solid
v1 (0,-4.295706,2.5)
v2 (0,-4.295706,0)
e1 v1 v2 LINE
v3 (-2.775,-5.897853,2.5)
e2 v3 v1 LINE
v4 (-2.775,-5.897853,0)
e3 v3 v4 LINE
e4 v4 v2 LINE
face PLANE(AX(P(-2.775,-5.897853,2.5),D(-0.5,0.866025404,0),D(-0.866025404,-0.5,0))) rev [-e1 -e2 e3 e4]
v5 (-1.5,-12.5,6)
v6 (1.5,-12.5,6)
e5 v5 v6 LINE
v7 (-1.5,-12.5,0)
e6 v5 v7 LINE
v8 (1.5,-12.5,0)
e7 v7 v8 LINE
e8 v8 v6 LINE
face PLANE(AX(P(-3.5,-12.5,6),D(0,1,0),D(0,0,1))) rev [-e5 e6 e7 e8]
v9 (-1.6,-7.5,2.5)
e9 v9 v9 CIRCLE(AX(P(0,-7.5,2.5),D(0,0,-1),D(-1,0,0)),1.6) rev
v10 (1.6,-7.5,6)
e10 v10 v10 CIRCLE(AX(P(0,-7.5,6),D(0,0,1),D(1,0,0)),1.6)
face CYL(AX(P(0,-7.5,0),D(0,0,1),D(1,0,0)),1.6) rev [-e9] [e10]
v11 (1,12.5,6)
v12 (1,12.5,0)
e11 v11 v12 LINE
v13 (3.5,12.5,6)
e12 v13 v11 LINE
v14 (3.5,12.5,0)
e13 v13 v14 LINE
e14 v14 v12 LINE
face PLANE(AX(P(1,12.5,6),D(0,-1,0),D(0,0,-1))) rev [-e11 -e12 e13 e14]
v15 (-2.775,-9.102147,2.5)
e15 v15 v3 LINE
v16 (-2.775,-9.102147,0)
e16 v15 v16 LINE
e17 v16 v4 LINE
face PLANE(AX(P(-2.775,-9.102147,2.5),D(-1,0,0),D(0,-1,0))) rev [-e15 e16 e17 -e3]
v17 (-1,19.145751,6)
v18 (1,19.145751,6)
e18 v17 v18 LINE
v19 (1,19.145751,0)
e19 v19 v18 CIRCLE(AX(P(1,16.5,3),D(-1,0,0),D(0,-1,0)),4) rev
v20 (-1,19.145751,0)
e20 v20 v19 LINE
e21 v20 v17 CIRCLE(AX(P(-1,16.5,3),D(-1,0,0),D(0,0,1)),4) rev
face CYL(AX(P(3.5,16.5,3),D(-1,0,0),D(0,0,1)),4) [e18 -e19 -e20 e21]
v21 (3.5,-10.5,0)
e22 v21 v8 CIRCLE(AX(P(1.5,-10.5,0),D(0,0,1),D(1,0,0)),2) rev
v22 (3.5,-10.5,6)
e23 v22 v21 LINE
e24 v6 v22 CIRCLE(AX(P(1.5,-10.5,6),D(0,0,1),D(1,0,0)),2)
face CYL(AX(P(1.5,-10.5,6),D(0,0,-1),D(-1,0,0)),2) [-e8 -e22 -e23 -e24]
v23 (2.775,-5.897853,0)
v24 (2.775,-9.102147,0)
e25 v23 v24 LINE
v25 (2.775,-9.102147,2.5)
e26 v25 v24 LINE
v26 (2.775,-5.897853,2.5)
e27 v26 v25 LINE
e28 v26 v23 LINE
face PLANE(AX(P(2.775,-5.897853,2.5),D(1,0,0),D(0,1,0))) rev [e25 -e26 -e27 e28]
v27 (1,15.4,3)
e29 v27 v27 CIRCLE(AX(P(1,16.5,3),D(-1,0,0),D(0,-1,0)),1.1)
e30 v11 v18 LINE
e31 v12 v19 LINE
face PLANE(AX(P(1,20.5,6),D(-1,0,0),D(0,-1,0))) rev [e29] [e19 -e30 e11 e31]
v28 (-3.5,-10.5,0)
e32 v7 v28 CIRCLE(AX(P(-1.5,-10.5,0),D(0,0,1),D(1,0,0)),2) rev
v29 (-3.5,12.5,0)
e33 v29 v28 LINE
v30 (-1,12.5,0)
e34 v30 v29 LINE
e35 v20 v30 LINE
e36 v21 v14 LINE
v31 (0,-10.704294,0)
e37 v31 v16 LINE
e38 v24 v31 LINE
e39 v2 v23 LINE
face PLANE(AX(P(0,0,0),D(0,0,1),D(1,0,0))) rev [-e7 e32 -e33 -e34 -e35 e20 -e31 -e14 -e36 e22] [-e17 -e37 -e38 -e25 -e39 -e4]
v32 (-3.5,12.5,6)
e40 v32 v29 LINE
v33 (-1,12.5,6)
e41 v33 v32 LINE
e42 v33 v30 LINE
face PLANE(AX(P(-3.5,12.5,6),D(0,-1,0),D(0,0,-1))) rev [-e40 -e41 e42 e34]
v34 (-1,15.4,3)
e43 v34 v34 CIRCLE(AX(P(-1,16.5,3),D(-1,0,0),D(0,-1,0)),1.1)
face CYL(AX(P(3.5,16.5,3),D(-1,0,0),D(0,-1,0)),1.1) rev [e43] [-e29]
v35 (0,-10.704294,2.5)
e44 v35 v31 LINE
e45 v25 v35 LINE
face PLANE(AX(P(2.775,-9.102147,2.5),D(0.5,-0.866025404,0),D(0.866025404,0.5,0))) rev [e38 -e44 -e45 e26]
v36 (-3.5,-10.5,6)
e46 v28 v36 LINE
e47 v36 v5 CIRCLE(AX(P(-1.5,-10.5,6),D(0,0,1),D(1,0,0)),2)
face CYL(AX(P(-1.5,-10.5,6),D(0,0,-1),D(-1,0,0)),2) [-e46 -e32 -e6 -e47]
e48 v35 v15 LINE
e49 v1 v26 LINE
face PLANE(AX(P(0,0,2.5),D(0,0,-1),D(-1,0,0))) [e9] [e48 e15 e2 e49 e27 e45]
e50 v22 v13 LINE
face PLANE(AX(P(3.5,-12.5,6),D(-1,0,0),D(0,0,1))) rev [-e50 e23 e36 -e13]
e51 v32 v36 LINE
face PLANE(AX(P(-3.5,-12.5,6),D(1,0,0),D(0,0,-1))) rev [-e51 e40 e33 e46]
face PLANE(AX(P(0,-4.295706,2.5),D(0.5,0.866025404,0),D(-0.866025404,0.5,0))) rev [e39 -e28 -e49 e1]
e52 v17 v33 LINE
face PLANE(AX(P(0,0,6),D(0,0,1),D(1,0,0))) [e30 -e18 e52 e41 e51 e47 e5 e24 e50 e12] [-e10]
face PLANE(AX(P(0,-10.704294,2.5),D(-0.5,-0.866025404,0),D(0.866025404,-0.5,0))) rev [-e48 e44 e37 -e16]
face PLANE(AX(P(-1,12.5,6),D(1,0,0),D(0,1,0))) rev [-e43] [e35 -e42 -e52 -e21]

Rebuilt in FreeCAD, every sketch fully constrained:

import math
import FreeCAD as App
import Part
import Sketcher

V = App.Vector
Q = App.Units.Quantity


def edges_at(feature, points):
    """Names of the edges that pass closest to the given points."""
    edges = feature.Shape.Edges
    near = lambda p: min(range(len(edges)), key=lambda i: edges[i].distToShape(Part.Vertex(*p))[0])
    return sorted({f"Edge{near(p) + 1}" for p in points})


def add_polygon(sketch, points):
    """Adds a closed chain of lines whose ends are joined by coincident constraints."""
    first, n = sketch.GeometryCount, len(points)
    for a, b in zip(points, points[1:] + points[:1]):
        sketch.addGeometry(Part.LineSegment(App.Vector(*a, 0), App.Vector(*b, 0)), False)
    for i in range(n):
        sketch.addConstraint(Sketcher.Constraint("Coincident", first + i, 2, first + (i + 1) % n, 1))

doc = App.newDocument("Part")
body = doc.addObject("PartDesign::Body", "Body")

# Sketch on XY plane
sketch1 = body.newObject("Sketcher::SketchObject", "Sketch")
sketch1.AttachmentSupport = (doc.getObject("XY_Plane"), [""])
sketch1.MapMode = "FlatFace"
add_polygon(sketch1, [(-1, 20.5), (-1, 12.5), (-3.5, 12.5), (-3.5, -12.5), (3.5, -12.5), (3.5, 12.5), (1, 12.5), (1, 20.5)])  # lines 0-7
sketch1.addConstraint(Sketcher.Constraint("Vertical", 0))
sketch1.addConstraint(Sketcher.Constraint("Horizontal", 1))
sketch1.addConstraint(Sketcher.Constraint("Vertical", 2))
sketch1.addConstraint(Sketcher.Constraint("Horizontal", 3))
sketch1.addConstraint(Sketcher.Constraint("Vertical", 4))
sketch1.addConstraint(Sketcher.Constraint("Horizontal", 5))
sketch1.addConstraint(Sketcher.Constraint("Vertical", 6))
sketch1.addConstraint(Sketcher.Constraint("Horizontal", 7))
sketch1.addConstraint(Sketcher.Constraint("Symmetric", 1, 2, 3, 2, -1, 1))
sketch1.addConstraint(Sketcher.Constraint("Symmetric", 0, 2, 5, 2, -2))
sketch1.addConstraint(Sketcher.Constraint("DistanceX", 3, 1, 3, 2, 7.0))
sketch1.addConstraint(Sketcher.Constraint("DistanceX", 7, 2, 7, 1, 2.0))
sketch1.addConstraint(Sketcher.Constraint("DistanceY", 0, 2, 0, 1, 8.0))
sketch1.addConstraint(Sketcher.Constraint("DistanceY", 2, 2, 2, 1, 25.0))
pad1 = body.newObject("PartDesign::Pad", "Pad")
pad1.Profile = sketch1
pad1.Length = 6

# Sketch on XY plane
sketch2 = body.newObject("Sketcher::SketchObject", "Sketch001")
sketch2.AttachmentSupport = (doc.getObject("XY_Plane"), [""])
sketch2.MapMode = "FlatFace"
sketch2.AttachmentOffset = App.Placement(V(0, 0, 6), App.Rotation())
sketch2.addGeometry(Part.Circle(V(0, -7.5, 0), V(0, 0, 1), 1.6), False)
sketch2.addConstraint(Sketcher.Constraint("PointOnObject", 0, 3, -2))
sketch2.addConstraint(Sketcher.Constraint("Diameter", 0, 3.2))
sketch2.addConstraint(Sketcher.Constraint("DistanceY", 0, 3, -1, 1, 7.5))
pocket1 = body.newObject("PartDesign::Pocket", "Pocket")
pocket1.Profile = sketch2
pocket1.Type = "ThroughAll"

# Sketch on XY plane
sketch3 = body.newObject("Sketcher::SketchObject", "Sketch002")
sketch3.AttachmentSupport = (doc.getObject("XY_Plane"), [""])
sketch3.MapMode = "FlatFace"
add_polygon(sketch3, [(0, -4.3), (2.8, -5.9), (2.8, -9.1), (0, -10.7), (-2.8, -9.1), (-2.8, -5.9)])  # lines 0-5
sketch3.addConstraint(Sketcher.Constraint("Vertical", 1))
sketch3.addConstraint(Sketcher.Constraint("Vertical", 4))
sketch3.addConstraint(Sketcher.Constraint("Symmetric", 1, 2, 3, 2, -2))
sketch3.addConstraint(Sketcher.Constraint("PointOnObject", 2, 2, -2))
sketch3.addConstraint(Sketcher.Constraint("PointOnObject", 5, 2, -2))
sketch3.addConstraint(Sketcher.Constraint("Parallel", 0, 3))
sketch3.addConstraint(Sketcher.Constraint("Parallel", 2, 5))
sketch3.addConstraint(Sketcher.Constraint("Angle", 0, Q("-30 deg")))
sketch3.addConstraint(Sketcher.Constraint("DistanceX", 3, 2, 1, 2, 5.55))
sketch3.addConstraint(Sketcher.Constraint("DistanceY", 1, 2, 1, 1, 3.204294))
sketch3.addConstraint(Sketcher.Constraint("DistanceY", 0, 2, -1, 1, 5.897853))
pocket2 = body.newObject("PartDesign::Pocket", "Pocket001")
pocket2.Profile = sketch3
pocket2.Length = 2.5
pocket2.Reversed = True

# Sketch on YZ plane
sketch4 = body.newObject("Sketcher::SketchObject", "Sketch003")
sketch4.AttachmentSupport = (doc.getObject("YZ_Plane"), [""])
sketch4.MapMode = "FlatFace"
sketch4.AttachmentOffset = App.Placement(V(0, 0, -1), App.Rotation())
sketch4.addGeometry(Part.Circle(V(16.5, 3, 0), V(0, 0, 1), 1.1), False)
sketch4.addConstraint(Sketcher.Constraint("Diameter", 0, 2.2))
sketch4.addConstraint(Sketcher.Constraint("DistanceY", -1, 1, 0, 3, 3.0))
sketch4.addConstraint(Sketcher.Constraint("DistanceX", -1, 1, 0, 3, 16.5))
pocket3 = body.newObject("PartDesign::Pocket", "Pocket002")
pocket3.Profile = sketch4
pocket3.Type = "ThroughAll"
pocket3.Reversed = True

# Sketch on YZ plane
sketch5 = body.newObject("Sketcher::SketchObject", "Sketch004")
sketch5.AttachmentSupport = (doc.getObject("YZ_Plane"), [""])
sketch5.MapMode = "FlatFace"
sketch5.AttachmentOffset = App.Placement(V(0, 0, -1), App.Rotation())
sketch5.addGeometry(Part.LineSegment(V(20.5, 6, 0), V(20.5, 3, 0)), False)
sketch5.addGeometry(Part.ArcOfCircle(Part.Circle(V(16.5, 3, 0), V(0, 0, 1), 4), math.radians(0), math.radians(49)), False)
sketch5.addGeometry(Part.LineSegment(V(19.1, 6, 0), V(20.5, 6, 0)), False)
sketch5.addGeometry(Part.LineSegment(V(20.5, 0, 0), V(19.1, 0, 0)), False)
sketch5.addGeometry(Part.ArcOfCircle(Part.Circle(V(16.5, 3, 0), V(0, 0, 1), 4), math.radians(-49), math.radians(0)), False)
sketch5.addGeometry(Part.LineSegment(V(20.5, 3, 0), V(20.5, 0, 0)), False)
sketch5.addConstraint(Sketcher.Constraint("Tangent", 0, 2, 1, 1))
sketch5.addConstraint(Sketcher.Constraint("Coincident", 1, 2, 2, 1))
sketch5.addConstraint(Sketcher.Constraint("Coincident", 2, 2, 0, 1))
sketch5.addConstraint(Sketcher.Constraint("Coincident", 3, 2, 4, 1))
sketch5.addConstraint(Sketcher.Constraint("Tangent", 4, 2, 5, 1))
sketch5.addConstraint(Sketcher.Constraint("Coincident", 5, 2, 3, 1))
sketch5.addConstraint(Sketcher.Constraint("Vertical", 0))
sketch5.addConstraint(Sketcher.Constraint("Horizontal", 2))
sketch5.addConstraint(Sketcher.Constraint("Horizontal", 3))
sketch5.addConstraint(Sketcher.Constraint("Vertical", 5))
sketch5.addConstraint(Sketcher.Constraint("Coincident", 4, 3, 1, 3))
sketch5.addConstraint(Sketcher.Constraint("Equal", 1, 4))
sketch5.addConstraint(Sketcher.Constraint("PointOnObject", 3, 2, -1))
sketch5.addConstraint(Sketcher.Constraint("Vertical", 1, 2, 3, 2))
sketch5.addConstraint(Sketcher.Constraint("Radius", 1, 4.0))
sketch5.addConstraint(Sketcher.Constraint("DistanceY", 0, 2, 0, 1, 3.0))
sketch5.addConstraint(Sketcher.Constraint("DistanceX", -1, 1, 1, 3, 16.5))
pocket4 = body.newObject("PartDesign::Pocket", "Pocket003")
pocket4.Profile = sketch5
pocket4.Type = "ThroughAll"
pocket4.Reversed = True
doc.recompute()

fillet = body.newObject("PartDesign::Fillet", "Fillet")
fillet.Base = (pocket4, edges_at(pocket4, [(3.5, -12.5, 3), (-3.5, -12.5, 3)]))
fillet.Radius = 2

doc.recompute()
